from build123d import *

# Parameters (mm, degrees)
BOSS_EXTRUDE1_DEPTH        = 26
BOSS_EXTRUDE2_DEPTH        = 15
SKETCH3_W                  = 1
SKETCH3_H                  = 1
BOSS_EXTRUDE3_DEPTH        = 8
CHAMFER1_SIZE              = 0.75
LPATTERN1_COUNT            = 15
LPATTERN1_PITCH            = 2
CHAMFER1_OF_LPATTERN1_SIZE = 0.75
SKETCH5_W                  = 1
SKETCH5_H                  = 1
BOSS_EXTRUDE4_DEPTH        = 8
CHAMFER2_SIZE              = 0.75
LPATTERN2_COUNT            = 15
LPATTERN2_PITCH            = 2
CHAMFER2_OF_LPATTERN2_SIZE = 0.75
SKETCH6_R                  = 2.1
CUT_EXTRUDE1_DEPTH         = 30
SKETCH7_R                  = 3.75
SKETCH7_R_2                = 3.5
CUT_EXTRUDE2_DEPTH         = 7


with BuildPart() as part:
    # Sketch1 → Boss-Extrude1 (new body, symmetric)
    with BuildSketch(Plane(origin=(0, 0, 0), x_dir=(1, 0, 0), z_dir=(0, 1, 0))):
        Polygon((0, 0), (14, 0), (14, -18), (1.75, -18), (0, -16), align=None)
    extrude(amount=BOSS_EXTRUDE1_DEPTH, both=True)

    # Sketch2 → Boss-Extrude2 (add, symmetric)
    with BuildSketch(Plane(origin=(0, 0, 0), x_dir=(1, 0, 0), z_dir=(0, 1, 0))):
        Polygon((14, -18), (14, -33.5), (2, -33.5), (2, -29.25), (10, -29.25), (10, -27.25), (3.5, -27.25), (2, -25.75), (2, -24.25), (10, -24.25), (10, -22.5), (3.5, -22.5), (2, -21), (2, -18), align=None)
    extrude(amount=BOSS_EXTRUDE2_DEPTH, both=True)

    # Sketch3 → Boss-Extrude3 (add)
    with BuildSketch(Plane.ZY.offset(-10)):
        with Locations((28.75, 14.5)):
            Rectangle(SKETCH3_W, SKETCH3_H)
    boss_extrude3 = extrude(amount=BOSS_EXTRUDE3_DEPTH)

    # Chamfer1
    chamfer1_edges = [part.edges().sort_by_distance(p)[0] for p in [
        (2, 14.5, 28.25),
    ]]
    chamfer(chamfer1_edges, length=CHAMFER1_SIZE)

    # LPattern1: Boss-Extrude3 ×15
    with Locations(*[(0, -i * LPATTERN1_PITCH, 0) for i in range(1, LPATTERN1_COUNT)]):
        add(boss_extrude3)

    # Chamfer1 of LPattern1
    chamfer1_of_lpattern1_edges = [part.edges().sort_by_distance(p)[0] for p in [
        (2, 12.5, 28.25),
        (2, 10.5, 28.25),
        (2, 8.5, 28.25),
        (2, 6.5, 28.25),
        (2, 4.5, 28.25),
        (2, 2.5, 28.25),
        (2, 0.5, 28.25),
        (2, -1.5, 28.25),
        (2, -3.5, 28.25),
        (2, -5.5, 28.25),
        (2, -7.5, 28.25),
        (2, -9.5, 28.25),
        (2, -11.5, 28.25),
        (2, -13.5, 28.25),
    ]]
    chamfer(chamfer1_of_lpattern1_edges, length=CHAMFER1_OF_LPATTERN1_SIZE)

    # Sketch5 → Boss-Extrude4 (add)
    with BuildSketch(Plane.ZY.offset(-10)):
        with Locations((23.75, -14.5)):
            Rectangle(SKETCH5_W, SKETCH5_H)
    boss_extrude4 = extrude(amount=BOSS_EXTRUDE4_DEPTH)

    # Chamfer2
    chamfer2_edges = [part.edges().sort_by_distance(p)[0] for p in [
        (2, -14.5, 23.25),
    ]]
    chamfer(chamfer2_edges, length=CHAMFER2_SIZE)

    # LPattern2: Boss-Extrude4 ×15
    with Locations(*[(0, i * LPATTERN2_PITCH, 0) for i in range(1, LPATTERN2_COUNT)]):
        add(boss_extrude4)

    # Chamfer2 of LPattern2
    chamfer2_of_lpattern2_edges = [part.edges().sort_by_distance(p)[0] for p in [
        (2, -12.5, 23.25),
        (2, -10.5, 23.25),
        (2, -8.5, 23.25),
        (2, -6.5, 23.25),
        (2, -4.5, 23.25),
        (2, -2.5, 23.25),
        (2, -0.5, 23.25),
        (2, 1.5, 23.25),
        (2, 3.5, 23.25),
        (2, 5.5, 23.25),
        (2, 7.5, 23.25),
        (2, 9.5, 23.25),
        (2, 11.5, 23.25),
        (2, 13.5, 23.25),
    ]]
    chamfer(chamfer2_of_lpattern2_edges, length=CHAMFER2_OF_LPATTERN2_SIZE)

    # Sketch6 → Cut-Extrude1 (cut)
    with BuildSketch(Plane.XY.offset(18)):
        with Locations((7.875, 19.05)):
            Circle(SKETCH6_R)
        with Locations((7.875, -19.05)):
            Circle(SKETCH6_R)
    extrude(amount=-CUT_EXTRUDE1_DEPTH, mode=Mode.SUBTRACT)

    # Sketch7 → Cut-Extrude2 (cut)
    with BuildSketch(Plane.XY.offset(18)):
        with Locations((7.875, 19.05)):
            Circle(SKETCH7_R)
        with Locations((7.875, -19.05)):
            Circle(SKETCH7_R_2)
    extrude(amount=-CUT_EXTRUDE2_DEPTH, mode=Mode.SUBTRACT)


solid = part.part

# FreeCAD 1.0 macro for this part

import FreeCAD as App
import Part
import Sketcher
Q = App.Units.Quantity


def edges_at(feature, points):
    """Names of the edges that pass closest to the given points."""
    edges = feature.Shape.Edges
    near = lambda p: min(range(len(edges)), key=lambda i: edges[i].distToShape(Part.Vertex(*p))[0])
    return sorted({f"Edge{near(p) + 1}" for p in points})


def add_polygon(sketch, points):
    """Adds a closed chain of lines whose ends are joined by coincident constraints."""
    first, n = sketch.GeometryCount, len(points)
    for a, b in zip(points, points[1:] + points[:1]):
        sketch.addGeometry(Part.LineSegment(App.Vector(*a, 0), App.Vector(*b, 0)), False)
    for i in range(n):
        sketch.addConstraint(Sketcher.Constraint("Coincident", first + i, 2, first + (i + 1) % n, 1))

doc = App.newDocument("Part")
params = doc.addObject("Spreadsheet::Sheet", "Params")
for row, (alias, value) in enumerate([
    ("sketch1_width", "14 mm"),
    ("sketch1_height", "16 mm"),
    ("sketch1_height2", "18 mm"),
    ("sketch1_width2", "12.25 mm"),
    ("pad1_length", "52 mm"),
    ("sketch2_width", "12 mm"),
    ("sketch2_width2", "8 mm"),
    ("sketch2_height", "3 mm"),
    ("sketch2_height2", "2 mm"),
    ("sketch2_width3", "6.5 mm"),
    ("pad2_length", "30 mm"),
    ("sketch3_width", "1 mm"),
    ("pad3_length", "8 mm"),
    ("chamfer_size", "0.75 mm"),
    ("linearpattern_pitch", "2 mm"),
    ("chamfer2_size", "0.75 mm"),
    ("sketch4_width", "1 mm"),
    ("pad4_length", "8 mm"),
    ("chamfer3_size", "0.75 mm"),
    ("linearpattern2_pitch", "2 mm"),
    ("chamfer4_size", "0.75 mm"),
    ("sketch5_diameter", "4.2 mm"),
    ("pocket1_length", "30 mm"),
    ("sketch6_diameter", "7 mm"),
    ("sketch6_diameter2", "7.5 mm"),
    ("pocket2_length", "7 mm"),
], start=1):
    params.set(f"A{row}", alias)
    params.set(f"B{row}", "=" + value)
    params.setAlias(f"B{row}", alias)

body = doc.addObject("PartDesign::Body", "Body")

sketch1 = body.newObject("Sketcher::SketchObject", "Sketch")
sketch1.AttachmentSupport = (doc.getObject("XZ_Plane"), [""])
sketch1.MapMode = "FlatFace"
add_polygon(sketch1, [(14, 0), (0, 0), (0, 16), (1.8, 18), (14, 18)])
sketch1.addConstraint([
    Sketcher.Constraint("Horizontal", 0),
    Sketcher.Constraint("Vertical", 1),
    Sketcher.Constraint("Horizontal", 3),
    Sketcher.Constraint("Vertical", 4),
    Sketcher.Constraint("Coincident", 0, 2, -1, 1),
    Sketcher.Constraint("DistanceX", 0, 2, 0, 1, 14.0),
    Sketcher.Constraint("DistanceY", 1, 1, 1, 2, 16.0),
    Sketcher.Constraint("DistanceY", 4, 2, 4, 1, 18.0),
    Sketcher.Constraint("DistanceX", 3, 1, 3, 2, 12.25),
])
sketch1.setExpression("Constraints[10]", "Params.sketch1_width")
sketch1.setExpression("Constraints[11]", "Params.sketch1_height")
sketch1.setExpression("Constraints[12]", "Params.sketch1_height2")
sketch1.setExpression("Constraints[13]", "Params.sketch1_width2")
pad1 = body.newObject("PartDesign::Pad", "Pad")
pad1.Profile = sketch1
pad1.setExpression("Length", "Params.pad1_length")
pad1.Midplane = True

sketch2 = body.newObject("Sketcher::SketchObject", "Sketch001")
sketch2.AttachmentSupport = (doc.getObject("XZ_Plane"), [""])
sketch2.MapMode = "FlatFace"
add_polygon(sketch2, [(14, 33.5), (14, 18), (2, 18), (2, 21), (3.5, 22.5), (10, 22.5), (10, 24.2), (2, 24.2), (2, 25.8), (3.5, 27.2), (10, 27.2), (10, 29.2), (2, 29.2), (2, 33.5)])
sketch2.addConstraint([
    Sketcher.Constraint("Vertical", 0),
    Sketcher.Constraint("Horizontal", 1),
    Sketcher.Constraint("Vertical", 2),
    Sketcher.Constraint("Horizontal", 4),
    Sketcher.Constraint("Vertical", 5),
    Sketcher.Constraint("Horizontal", 6),
    Sketcher.Constraint("Vertical", 7),
    Sketcher.Constraint("Horizontal", 9),
    Sketcher.Constraint("Vertical", 10),
    Sketcher.Constraint("Horizontal", 11),
    Sketcher.Constraint("Vertical", 12),
    Sketcher.Constraint("Horizontal", 13),
    Sketcher.Constraint("Parallel", 3, 8),
    Sketcher.Constraint("Vertical", 2, 2, 6, 2),
    Sketcher.Constraint("Vertical", 3, 2, 8, 2),
    Sketcher.Constraint("Vertical", 5, 2, 9, 2),
    Sketcher.Constraint("Vertical", 7, 2, 11, 2),
    Sketcher.Constraint("DistanceX", 1, 2, 1, 1, 12.0),
    Sketcher.Constraint("DistanceX", 6, 2, 6, 1, 8.0),
    Sketcher.Constraint("DistanceY", 2, 1, 2, 2, 3.0),
    Sketcher.Constraint("DistanceY", 10, 1, 10, 2, 2.0),
    Sketcher.Constraint("Angle", 3, Q("45 deg")),
    Sketcher.Constraint("DistanceX", 4, 1, 4, 2, 6.5),
    Sketcher.Constraint("DistanceY", 0, 2, 0, 1, 15.5),
    Sketcher.Constraint("DistanceY", 7, 1, 7, 2, 1.5),
    Sketcher.Constraint("DistanceX", -1, 1, 0, 2, 14.0),
    Sketcher.Constraint("DistanceY", -1, 1, 0, 2, 18.0),
    Sketcher.Constraint("DistanceY", 5, 1, 5, 2, 1.75),
])
sketch2.setExpression("Constraints[31]", "Params.sketch2_width")
sketch2.setExpression("Constraints[32]", "Params.sketch2_width2")
sketch2.setExpression("Constraints[33]", "Params.sketch2_height")
sketch2.setExpression("Constraints[34]", "Params.sketch2_height2")
sketch2.setExpression("Constraints[36]", "Params.sketch2_width3")
pad2 = body.newObject("PartDesign::Pad", "Pad001")
pad2.Profile = sketch2
pad2.setExpression("Length", "Params.pad2_length")
pad2.Midplane = True

sketch3 = body.newObject("Sketcher::SketchObject", "Sketch002")
sketch3.AttachmentSupport = (doc.getObject("YZ_Plane"), [""])
sketch3.MapMode = "FlatFace"
sketch3.AttachmentOffset = App.Placement(App.Vector(0, 0, 10), App.Rotation())
add_polygon(sketch3, [(15, 28.2), (14, 28.2), (14, 29.2), (15, 29.2)])
sketch3.addConstraint([
    Sketcher.Constraint("Horizontal", 0),
    Sketcher.Constraint("Vertical", 1),
    Sketcher.Constraint("Horizontal", 2),
    Sketcher.Constraint("Vertical", 3),
    Sketcher.Constraint("Equal", 2, 1),
    Sketcher.Constraint("DistanceX", 0, 2, 0, 1, 1.0),
    Sketcher.Constraint("DistanceX", -1, 1, 0, 2, 14.0),
    Sketcher.Constraint("DistanceY", -1, 1, 0, 2, 28.25),
])
sketch3.setExpression("Constraints[9]", "Params.sketch3_width")
pad3 = body.newObject("PartDesign::Pad", "Pad002")
pad3.Profile = sketch3
pad3.setExpression("Length", "Params.pad3_length")
pad3.Reversed = True
doc.recompute()

chamfer = body.newObject("PartDesign::Chamfer", "Chamfer")
chamfer.Base = (pad3, edges_at(pad3, [(2, 14.5, 28.25)]))
chamfer.setExpression("Size", "Params.chamfer_size")
doc.recompute()

linearpattern = body.newObject("PartDesign::LinearPattern", "LinearPattern")
linearpattern.Originals = [pad3]
linearpattern.Direction = (doc.getObject("Y_Axis"), [""])
linearpattern.Mode = "offset"
linearpattern.setExpression("Offset", "Params.linearpattern_pitch")
linearpattern.Occurrences = 15
linearpattern.Reversed = True
body.Tip = linearpattern
doc.recompute()

chamfer2 = body.newObject("PartDesign::Chamfer", "Chamfer001")
chamfer2.Base = (linearpattern, edges_at(linearpattern, [
    (2, 12.5, 28.25),
    (2, 10.5, 28.25),
    (2, 8.5, 28.25),
    (2, 6.5, 28.25),
    (2, 4.5, 28.25),
    (2, 2.5, 28.25),
    (2, 0.5, 28.25),
    (2, -1.5, 28.25),
    (2, -3.5, 28.25),
    (2, -5.5, 28.25),
    (2, -7.5, 28.25),
    (2, -9.5, 28.25),
    (2, -11.5, 28.25),
    (2, -13.5, 28.25),
]))
chamfer2.setExpression("Size", "Params.chamfer2_size")

sketch4 = body.newObject("Sketcher::SketchObject", "Sketch003")
sketch4.AttachmentSupport = (doc.getObject("YZ_Plane"), [""])
sketch4.MapMode = "FlatFace"
sketch4.AttachmentOffset = App.Placement(App.Vector(0, 0, 10), App.Rotation())
add_polygon(sketch4, [(-14, 23.2), (-15, 23.2), (-15, 24.2), (-14, 24.2)])
sketch4.addConstraint([
    Sketcher.Constraint("Horizontal", 0),
    Sketcher.Constraint("Vertical", 1),
    Sketcher.Constraint("Horizontal", 2),
    Sketcher.Constraint("Vertical", 3),
    Sketcher.Constraint("Equal", 2, 1),
    Sketcher.Constraint("DistanceX", 0, 2, 0, 1, 1.0),
    Sketcher.Constraint("DistanceX", 0, 2, -1, 1, 15.0),
    Sketcher.Constraint("DistanceY", -1, 1, 0, 2, 23.25),
])
sketch4.setExpression("Constraints[9]", "Params.sketch4_width")
pad4 = body.newObject("PartDesign::Pad", "Pad003")
pad4.Profile = sketch4
pad4.setExpression("Length", "Params.pad4_length")
pad4.Reversed = True
doc.recompute()

chamfer3 = body.newObject("PartDesign::Chamfer", "Chamfer002")
chamfer3.Base = (pad4, edges_at(pad4, [(2, -14.5, 23.25)]))
chamfer3.setExpression("Size", "Params.chamfer3_size")
doc.recompute()

linearpattern2 = body.newObject("PartDesign::LinearPattern", "LinearPattern001")
linearpattern2.Originals = [pad4]
linearpattern2.Direction = (doc.getObject("Y_Axis"), [""])
linearpattern2.Mode = "offset"
linearpattern2.setExpression("Offset", "Params.linearpattern2_pitch")
linearpattern2.Occurrences = 15
body.Tip = linearpattern2
doc.recompute()

chamfer4 = body.newObject("PartDesign::Chamfer", "Chamfer003")
chamfer4.Base = (linearpattern2, edges_at(linearpattern2, [
    (2, -12.5, 23.25),
    (2, -10.5, 23.25),
    (2, -8.5, 23.25),
    (2, -6.5, 23.25),
    (2, -4.5, 23.25),
    (2, -2.5, 23.25),
    (2, -0.5, 23.25),
    (2, 1.5, 23.25),
    (2, 3.5, 23.25),
    (2, 5.5, 23.25),
    (2, 7.5, 23.25),
    (2, 9.5, 23.25),
    (2, 11.5, 23.25),
    (2, 13.5, 23.25),
]))
chamfer4.setExpression("Size", "Params.chamfer4_size")

sketch5 = body.newObject("Sketcher::SketchObject", "Sketch004")
sketch5.AttachmentSupport = (doc.getObject("XY_Plane"), [""])
sketch5.MapMode = "FlatFace"
sketch5.AttachmentOffset = App.Placement(App.Vector(0, 0, 18), App.Rotation())
sketch5.addGeometry([
    Part.Circle(App.Vector(7.9, 19.1, 0), App.Vector(0, 0, 1), 2.1),
    Part.Circle(App.Vector(7.9, -19.1, 0), App.Vector(0, 0, 1), 2.1),
], False)
sketch5.addConstraint([
    Sketcher.Constraint("Equal", 0, 1),
    Sketcher.Constraint("Symmetric", 0, 3, 1, 3, -1),
    Sketcher.Constraint("Diameter", 0, 4.2),
    Sketcher.Constraint("DistanceY", 1, 3, 0, 3, 38.1),
    Sketcher.Constraint("DistanceX", -1, 1, 0, 3, 7.875),
])
sketch5.setExpression("Constraints[2]", "Params.sketch5_diameter")
pocket1 = body.newObject("PartDesign::Pocket", "Pocket")
pocket1.Profile = sketch5
pocket1.setExpression("Length", "Params.pocket1_length")

sketch6 = body.newObject("Sketcher::SketchObject", "Sketch005")
sketch6.AttachmentSupport = (doc.getObject("XY_Plane"), [""])
sketch6.MapMode = "FlatFace"
sketch6.AttachmentOffset = App.Placement(App.Vector(0, 0, 18), App.Rotation())
sketch6.addGeometry([
    Part.Circle(App.Vector(7.9, 19.1, 0), App.Vector(0, 0, 1), 3.8),
    Part.Circle(App.Vector(7.9, -19.1, 0), App.Vector(0, 0, 1), 3.5),
], False)
sketch6.addConstraint([
    Sketcher.Constraint("Symmetric", 0, 3, 1, 3, -1),
    Sketcher.Constraint("Diameter", 1, 7.0),
    Sketcher.Constraint("Diameter", 0, 7.5),
    Sketcher.Constraint("DistanceY", 1, 3, 0, 3, 38.1),
    Sketcher.Constraint("DistanceX", -1, 1, 0, 3, 7.875),
])
sketch6.setExpression("Constraints[1]", "Params.sketch6_diameter")
sketch6.setExpression("Constraints[2]", "Params.sketch6_diameter2")
pocket2 = body.newObject("PartDesign::Pocket", "Pocket001")
pocket2.Profile = sketch6
pocket2.setExpression("Length", "Params.pocket2_length")

doc.recompute()
